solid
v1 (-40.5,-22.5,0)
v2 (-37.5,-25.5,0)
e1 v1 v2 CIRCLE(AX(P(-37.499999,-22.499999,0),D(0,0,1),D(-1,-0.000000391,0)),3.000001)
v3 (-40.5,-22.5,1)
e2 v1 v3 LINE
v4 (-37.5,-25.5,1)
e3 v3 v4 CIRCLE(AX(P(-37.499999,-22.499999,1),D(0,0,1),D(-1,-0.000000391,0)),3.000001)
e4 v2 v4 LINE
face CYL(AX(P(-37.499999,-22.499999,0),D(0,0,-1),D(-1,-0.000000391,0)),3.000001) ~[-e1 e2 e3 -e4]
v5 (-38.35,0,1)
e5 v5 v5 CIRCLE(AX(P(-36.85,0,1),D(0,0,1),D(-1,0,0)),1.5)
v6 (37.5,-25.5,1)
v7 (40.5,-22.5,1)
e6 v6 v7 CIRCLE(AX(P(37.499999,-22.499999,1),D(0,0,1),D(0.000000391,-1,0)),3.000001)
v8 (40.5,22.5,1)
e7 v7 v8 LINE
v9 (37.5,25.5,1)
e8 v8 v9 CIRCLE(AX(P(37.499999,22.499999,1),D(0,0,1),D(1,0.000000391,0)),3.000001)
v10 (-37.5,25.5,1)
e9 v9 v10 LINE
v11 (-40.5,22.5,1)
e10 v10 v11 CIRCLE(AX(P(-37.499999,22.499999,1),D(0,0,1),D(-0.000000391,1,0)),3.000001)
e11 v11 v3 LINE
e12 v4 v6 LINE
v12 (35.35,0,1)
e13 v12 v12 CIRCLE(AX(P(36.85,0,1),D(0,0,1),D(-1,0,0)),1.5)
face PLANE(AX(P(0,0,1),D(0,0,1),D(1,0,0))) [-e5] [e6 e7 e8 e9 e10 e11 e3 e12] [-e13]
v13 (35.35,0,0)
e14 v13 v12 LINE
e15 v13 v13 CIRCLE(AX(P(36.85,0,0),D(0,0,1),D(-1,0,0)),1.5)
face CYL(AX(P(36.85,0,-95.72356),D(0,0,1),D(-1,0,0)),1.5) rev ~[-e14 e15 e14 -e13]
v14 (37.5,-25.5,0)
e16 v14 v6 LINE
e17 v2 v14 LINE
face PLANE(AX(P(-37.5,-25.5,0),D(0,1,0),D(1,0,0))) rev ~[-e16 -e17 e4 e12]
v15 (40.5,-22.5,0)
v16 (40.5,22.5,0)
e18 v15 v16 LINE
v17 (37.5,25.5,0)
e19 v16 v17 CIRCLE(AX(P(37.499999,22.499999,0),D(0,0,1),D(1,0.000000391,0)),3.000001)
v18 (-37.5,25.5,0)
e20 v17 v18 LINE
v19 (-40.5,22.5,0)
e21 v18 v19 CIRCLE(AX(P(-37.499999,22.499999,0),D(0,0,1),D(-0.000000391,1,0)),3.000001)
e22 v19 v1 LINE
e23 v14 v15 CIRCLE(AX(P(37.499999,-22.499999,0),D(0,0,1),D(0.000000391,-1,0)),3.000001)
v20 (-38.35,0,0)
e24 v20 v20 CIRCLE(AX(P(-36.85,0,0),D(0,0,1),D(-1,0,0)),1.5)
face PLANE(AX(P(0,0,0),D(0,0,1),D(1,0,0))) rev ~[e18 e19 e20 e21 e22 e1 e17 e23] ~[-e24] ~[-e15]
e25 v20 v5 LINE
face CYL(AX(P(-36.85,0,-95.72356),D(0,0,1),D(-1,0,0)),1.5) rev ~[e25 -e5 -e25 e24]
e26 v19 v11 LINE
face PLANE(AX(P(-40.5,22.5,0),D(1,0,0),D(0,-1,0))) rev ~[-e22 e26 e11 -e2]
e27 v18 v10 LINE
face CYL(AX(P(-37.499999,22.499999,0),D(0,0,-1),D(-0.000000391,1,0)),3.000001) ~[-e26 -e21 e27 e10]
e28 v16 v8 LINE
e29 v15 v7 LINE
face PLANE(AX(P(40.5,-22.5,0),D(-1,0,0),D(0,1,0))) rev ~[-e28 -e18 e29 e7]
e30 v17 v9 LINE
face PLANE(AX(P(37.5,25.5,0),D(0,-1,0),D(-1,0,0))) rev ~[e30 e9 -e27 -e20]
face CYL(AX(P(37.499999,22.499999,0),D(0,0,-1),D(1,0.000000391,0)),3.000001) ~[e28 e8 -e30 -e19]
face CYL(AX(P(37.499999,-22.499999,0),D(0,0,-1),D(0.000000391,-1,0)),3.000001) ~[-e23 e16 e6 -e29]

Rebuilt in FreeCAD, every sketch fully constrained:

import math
import FreeCAD as App
import Part
import Sketcher
from FreeCAD import Vector

doc = App.newDocument("Part")
body = doc.addObject("PartDesign::Body", "Body")

# Sketch on XY plane
sketch1 = body.newObject("Sketcher::SketchObject", "Sketch")
sketch1.AttachmentSupport = (doc.getObject("XY_Plane"), [""])
sketch1.MapMode = "FlatFace"
sketch1.addGeometry(Part.LineSegment(Vector(37.5, 25.5, 0), Vector(-37.5, 25.5, 0)), False)
sketch1.addGeometry(Part.ArcOfCircle(Part.Circle(Vector(-37.499999, 22.499999, 0), Vector(0, 0, 1), 3.000001), math.radians(90.000022), math.radians(179.999978)), False)
sketch1.addGeometry(Part.LineSegment(Vector(-40.5, 22.5, 0), Vector(-40.5, -22.5, 0)), False)
sketch1.addGeometry(Part.ArcOfCircle(Part.Circle(Vector(-37.499999, -22.499999, 0), Vector(0, 0, 1), 3.000001), math.radians(-179.999978), math.radians(-90.000022)), False)
sketch1.addGeometry(Part.LineSegment(Vector(-37.5, -25.5, 0), Vector(37.5, -25.5, 0)), False)
sketch1.addGeometry(Part.ArcOfCircle(Part.Circle(Vector(37.499999, -22.499999, 0), Vector(0, 0, 1), 3.000001), math.radians(-89.999978), math.radians(-0.000022)), False)
sketch1.addGeometry(Part.LineSegment(Vector(40.5, -22.5, 0), Vector(40.5, 22.5, 0)), False)
sketch1.addGeometry(Part.ArcOfCircle(Part.Circle(Vector(37.499999, 22.499999, 0), Vector(0, 0, 1), 3.000001), math.radians(0.000022), math.radians(89.999978)), False)
sketch1.addConstraint(Sketcher.Constraint("Tangent", 0, 2, 1, 1))
sketch1.addConstraint(Sketcher.Constraint("Tangent", 1, 2, 2, 1))
sketch1.addConstraint(Sketcher.Constraint("Tangent", 2, 2, 3, 1))
sketch1.addConstraint(Sketcher.Constraint("Tangent", 3, 2, 4, 1))
sketch1.addConstraint(Sketcher.Constraint("Tangent", 4, 2, 5, 1))
sketch1.addConstraint(Sketcher.Constraint("Tangent", 5, 2, 6, 1))
sketch1.addConstraint(Sketcher.Constraint("Tangent", 6, 2, 7, 1))
sketch1.addConstraint(Sketcher.Constraint("Tangent", 7, 2, 0, 1))
sketch1.addConstraint(Sketcher.Constraint("Horizontal", 0))
sketch1.addConstraint(Sketcher.Constraint("Vertical", 2))
sketch1.addConstraint(Sketcher.Constraint("Horizontal", 4))
sketch1.addConstraint(Sketcher.Constraint("Vertical", 6))
sketch1.addConstraint(Sketcher.Constraint("Equal", 1, 3))
sketch1.addConstraint(Sketcher.Constraint("Equal", 3, 5))
sketch1.addConstraint(Sketcher.Constraint("Equal", 5, 7))
sketch1.addConstraint(Sketcher.Constraint("Symmetric", 1, 3, 5, 3, -1, 1))
sketch1.addConstraint(Sketcher.Constraint("Radius", 1, 3.000001))
sketch1.addConstraint(Sketcher.Constraint("DistanceX", 0, 2, 0, 1, 75.0))
sketch1.addConstraint(Sketcher.Constraint("DistanceY", 2, 2, 2, 1, 45.0))
pad1 = body.newObject("PartDesign::Pad", "Pad")
pad1.Profile = sketch1
pad1.Length = 1

# Sketch on XY plane
sketch2 = body.newObject("Sketcher::SketchObject", "Sketch001")
sketch2.AttachmentSupport = (doc.getObject("XY_Plane"), [""])
sketch2.MapMode = "FlatFace"
sketch2.addGeometry(Part.Circle(Vector(-36.85, 0, 0), Vector(0, 0, 1), 1.5), False)
sketch2.addGeometry(Part.Circle(Vector(36.85, 0, 0), Vector(0, 0, 1), 1.5), False)
sketch2.addConstraint(Sketcher.Constraint("Equal", 0, 1))
sketch2.addConstraint(Sketcher.Constraint("Symmetric", 0, 3, 1, 3, -1, 1))
sketch2.addConstraint(Sketcher.Constraint("PointOnObject", 0, 3, -1))
sketch2.addConstraint(Sketcher.Constraint("Diameter", 0, 3.0))
sketch2.addConstraint(Sketcher.Constraint("DistanceX", 0, 3, 1, 3, 73.7))
doc.recompute()
hole = body.newObject("PartDesign::Hole", "Hole")
hole.Profile = sketch2
hole.ThreadType = "None"
hole.Diameter = 3
hole.DepthType = "ThroughAll"
hole.Reversed = True

doc.recompute()
